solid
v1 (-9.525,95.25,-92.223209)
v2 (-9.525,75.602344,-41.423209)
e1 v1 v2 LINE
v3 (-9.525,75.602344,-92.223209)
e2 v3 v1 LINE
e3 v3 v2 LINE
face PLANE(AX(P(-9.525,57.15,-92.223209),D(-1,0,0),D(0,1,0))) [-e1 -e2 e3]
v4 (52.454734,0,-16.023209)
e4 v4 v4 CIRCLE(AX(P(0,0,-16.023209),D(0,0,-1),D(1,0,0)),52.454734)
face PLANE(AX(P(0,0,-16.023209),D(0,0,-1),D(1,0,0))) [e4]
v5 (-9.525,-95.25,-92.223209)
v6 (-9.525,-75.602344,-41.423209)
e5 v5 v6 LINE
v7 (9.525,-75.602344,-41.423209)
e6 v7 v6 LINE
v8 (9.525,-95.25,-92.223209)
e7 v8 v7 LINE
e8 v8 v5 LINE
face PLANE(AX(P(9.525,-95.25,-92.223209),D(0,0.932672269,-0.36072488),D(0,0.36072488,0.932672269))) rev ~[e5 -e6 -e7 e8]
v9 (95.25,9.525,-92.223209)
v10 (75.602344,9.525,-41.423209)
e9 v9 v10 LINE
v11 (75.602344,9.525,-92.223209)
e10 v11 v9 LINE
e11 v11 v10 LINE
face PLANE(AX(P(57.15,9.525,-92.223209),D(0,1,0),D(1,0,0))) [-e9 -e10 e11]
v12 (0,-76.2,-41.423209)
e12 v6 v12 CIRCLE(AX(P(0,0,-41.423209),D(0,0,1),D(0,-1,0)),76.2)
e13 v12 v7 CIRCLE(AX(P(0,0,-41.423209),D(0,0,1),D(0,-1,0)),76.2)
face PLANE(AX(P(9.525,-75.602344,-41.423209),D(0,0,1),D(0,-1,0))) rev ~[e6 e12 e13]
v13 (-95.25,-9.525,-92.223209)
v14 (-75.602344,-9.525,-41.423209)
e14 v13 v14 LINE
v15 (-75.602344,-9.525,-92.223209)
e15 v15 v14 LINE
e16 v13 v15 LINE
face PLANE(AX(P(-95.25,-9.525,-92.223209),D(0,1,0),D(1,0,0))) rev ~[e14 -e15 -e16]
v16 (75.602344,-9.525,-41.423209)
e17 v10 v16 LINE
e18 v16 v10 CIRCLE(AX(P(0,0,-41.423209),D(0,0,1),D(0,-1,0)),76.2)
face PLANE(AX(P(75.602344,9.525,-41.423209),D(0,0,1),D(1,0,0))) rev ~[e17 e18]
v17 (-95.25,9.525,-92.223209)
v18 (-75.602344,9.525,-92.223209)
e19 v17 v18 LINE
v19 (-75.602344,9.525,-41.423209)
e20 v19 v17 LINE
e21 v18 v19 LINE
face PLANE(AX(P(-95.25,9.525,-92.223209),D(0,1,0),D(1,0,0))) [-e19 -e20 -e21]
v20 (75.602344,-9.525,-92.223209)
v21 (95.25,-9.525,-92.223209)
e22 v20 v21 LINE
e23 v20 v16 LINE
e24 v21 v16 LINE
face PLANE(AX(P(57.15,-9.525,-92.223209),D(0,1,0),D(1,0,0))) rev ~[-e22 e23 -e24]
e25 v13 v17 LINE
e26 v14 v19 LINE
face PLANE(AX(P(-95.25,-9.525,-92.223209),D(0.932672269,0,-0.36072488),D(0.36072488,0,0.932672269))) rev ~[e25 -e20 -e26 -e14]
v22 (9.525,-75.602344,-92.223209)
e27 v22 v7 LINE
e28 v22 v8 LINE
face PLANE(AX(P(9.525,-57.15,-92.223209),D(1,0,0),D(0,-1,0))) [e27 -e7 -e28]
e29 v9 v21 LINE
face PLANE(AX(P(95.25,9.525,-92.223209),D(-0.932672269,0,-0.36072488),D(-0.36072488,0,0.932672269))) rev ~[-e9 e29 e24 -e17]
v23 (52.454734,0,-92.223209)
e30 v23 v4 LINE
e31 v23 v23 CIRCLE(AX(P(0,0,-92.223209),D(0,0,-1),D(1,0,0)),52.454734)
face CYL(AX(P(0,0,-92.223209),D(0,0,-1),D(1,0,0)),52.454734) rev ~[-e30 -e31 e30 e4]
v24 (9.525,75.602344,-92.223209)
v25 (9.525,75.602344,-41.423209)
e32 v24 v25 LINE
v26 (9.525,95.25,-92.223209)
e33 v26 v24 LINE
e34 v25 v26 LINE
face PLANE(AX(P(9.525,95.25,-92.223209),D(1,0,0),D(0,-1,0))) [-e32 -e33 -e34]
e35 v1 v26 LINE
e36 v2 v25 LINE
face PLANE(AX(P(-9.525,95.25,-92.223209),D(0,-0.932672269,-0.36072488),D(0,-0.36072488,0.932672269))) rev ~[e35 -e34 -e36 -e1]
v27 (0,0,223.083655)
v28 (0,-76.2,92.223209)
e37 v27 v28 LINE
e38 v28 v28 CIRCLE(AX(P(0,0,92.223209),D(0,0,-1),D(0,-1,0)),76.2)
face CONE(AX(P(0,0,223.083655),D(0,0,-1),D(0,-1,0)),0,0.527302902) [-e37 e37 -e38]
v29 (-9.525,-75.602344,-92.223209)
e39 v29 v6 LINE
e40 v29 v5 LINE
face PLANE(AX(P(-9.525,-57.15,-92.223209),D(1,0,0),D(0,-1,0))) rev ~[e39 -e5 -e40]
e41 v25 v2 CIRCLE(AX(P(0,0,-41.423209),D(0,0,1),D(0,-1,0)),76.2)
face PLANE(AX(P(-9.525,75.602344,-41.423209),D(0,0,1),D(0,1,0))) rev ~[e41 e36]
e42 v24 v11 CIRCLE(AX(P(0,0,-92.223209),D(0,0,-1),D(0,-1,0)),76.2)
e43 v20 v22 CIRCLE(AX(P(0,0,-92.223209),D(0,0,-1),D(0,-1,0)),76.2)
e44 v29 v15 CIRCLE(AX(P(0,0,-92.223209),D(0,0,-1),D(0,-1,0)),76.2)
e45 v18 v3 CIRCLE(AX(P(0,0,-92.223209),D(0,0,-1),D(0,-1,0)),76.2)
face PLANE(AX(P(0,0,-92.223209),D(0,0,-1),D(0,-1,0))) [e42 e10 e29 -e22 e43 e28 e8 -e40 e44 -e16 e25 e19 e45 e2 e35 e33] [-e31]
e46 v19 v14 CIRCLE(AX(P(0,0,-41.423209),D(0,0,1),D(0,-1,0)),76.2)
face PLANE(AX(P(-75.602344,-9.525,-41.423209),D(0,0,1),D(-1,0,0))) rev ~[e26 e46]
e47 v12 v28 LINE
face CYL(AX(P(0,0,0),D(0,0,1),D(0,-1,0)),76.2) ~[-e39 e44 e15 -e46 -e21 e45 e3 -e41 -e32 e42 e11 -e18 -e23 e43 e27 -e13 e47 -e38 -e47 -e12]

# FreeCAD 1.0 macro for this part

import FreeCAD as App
import Part
import Sketcher
Q = App.Units.Quantity

doc = App.newDocument("Part")
params = doc.addObject("Spreadsheet::Sheet", "Params")
for row, (alias, value) in enumerate([
    ("sketch1_width", "3 in"),
    ("revolution_angle", "360 deg"),
    ("pocket1_length", "3 in"),
    ("sketch3_width", "1.5 in"),
    ("sketch3_width2", "0.75 in"),
    ("pad1_length", "2 in"),
    ("sketch4_height", "2 in"),
    ("sketch5_height", "2 in"),
    ("sketch6_height", "2 in"),
    ("sketch7_height", "2 in"),
], start=1):
    params.set(f"A{row}", alias)
    params.set(f"B{row}", "=" + value)
    params.setAlias(f"B{row}", alias)

body = doc.addObject("PartDesign::Body", "Body")

# Sketch on YZ plane
sketch1 = body.newObject("Sketcher::SketchObject", "Sketch")
sketch1.AttachmentSupport = (doc.getObject("YZ_Plane"), [""])
sketch1.MapMode = "FlatFace"
sketch1.addGeometry(Part.LineSegment(App.Vector(0, 223, 0), App.Vector(-76, 92, 0)), False)
sketch1.addGeometry(Part.LineSegment(App.Vector(-76, 92, 0), App.Vector(-76, -92, 0)), False)
sketch1.addGeometry(Part.LineSegment(App.Vector(-76, -92, 0), App.Vector(0, -92, 0)), False)
sketch1.addGeometry(Part.LineSegment(App.Vector(0, -92, 0), App.Vector(0, 223, 0)), False)
sketch1.addConstraint(Sketcher.Constraint("Coincident", 0, 2, 1, 1))
sketch1.addConstraint(Sketcher.Constraint("Coincident", 1, 2, 2, 1))
sketch1.addConstraint(Sketcher.Constraint("Coincident", 2, 2, 3, 1))
sketch1.addConstraint(Sketcher.Constraint("Coincident", 3, 2, 0, 1))
sketch1.addConstraint(Sketcher.Constraint("Vertical", 1))
sketch1.addConstraint(Sketcher.Constraint("Horizontal", 2))
sketch1.addConstraint(Sketcher.Constraint("Vertical", 3))
sketch1.addConstraint(Sketcher.Constraint("PointOnObject", 2, 2, -2))
sketch1.addConstraint(Sketcher.Constraint("DistanceX", 2, 1, 2, 2, Q("3 in")))
sketch1.addConstraint(Sketcher.Constraint("DistanceY", 1, 2, 1, 1, 184.446418))
sketch1.addConstraint(Sketcher.Constraint("Distance", 0, 151.429509))
sketch1.addConstraint(Sketcher.Constraint("DistanceY", -1, 1, 0, 2, 92.223209))
sketch1.setExpression("Constraints[8]", "Params.sketch1_width")
revolution = body.newObject("PartDesign::Revolution", "Revolution")
revolution.Profile = sketch1
revolution.ReferenceAxis = (sketch1, ["V_Axis"])
revolution.setExpression("Angle", "Params.revolution_angle")

# Sketch on XY plane
sketch2 = body.newObject("Sketcher::SketchObject", "Sketch001")
sketch2.AttachmentSupport = (doc.getObject("XY_Plane"), [""])
sketch2.MapMode = "FlatFace"
sketch2.AttachmentOffset = App.Placement(App.Vector(0, 0, -92.223209), App.Rotation())
sketch2.addGeometry(Part.Circle(App.Vector(0, 0, 0), App.Vector(0, 0, 1), 52), False)
sketch2.addConstraint(Sketcher.Constraint("Coincident", 0, 3, -1, 1))
sketch2.addConstraint(Sketcher.Constraint("Diameter", 0, 104.909468))
pocket1 = body.newObject("PartDesign::Pocket", "Pocket")
pocket1.Profile = sketch2
pocket1.setExpression("Length", "Params.pocket1_length")
pocket1.Reversed = True

# Sketch on XY plane
sketch3 = body.newObject("Sketcher::SketchObject", "Sketch002")
sketch3.AttachmentSupport = (doc.getObject("XY_Plane"), [""])
sketch3.MapMode = "FlatFace"
sketch3.AttachmentOffset = App.Placement(App.Vector(0, 0, -92.223209), App.Rotation())
sketch3.addGeometry(Part.LineSegment(App.Vector(57, 10, 0), App.Vector(95, 10, 0)), False)
sketch3.addGeometry(Part.LineSegment(App.Vector(95, 10, 0), App.Vector(95, -10, 0)), False)
sketch3.addGeometry(Part.LineSegment(App.Vector(95, -10, 0), App.Vector(57, -10, 0)), False)
sketch3.addGeometry(Part.LineSegment(App.Vector(57, -10, 0), App.Vector(57, 10, 0)), False)
sketch3.addGeometry(Part.LineSegment(App.Vector(-95, 10, 0), App.Vector(-57, 10, 0)), False)
sketch3.addGeometry(Part.LineSegment(App.Vector(-57, 10, 0), App.Vector(-57, -10, 0)), False)
sketch3.addGeometry(Part.LineSegment(App.Vector(-57, -10, 0), App.Vector(-95, -10, 0)), False)
sketch3.addGeometry(Part.LineSegment(App.Vector(-95, -10, 0), App.Vector(-95, 10, 0)), False)
sketch3.addGeometry(Part.LineSegment(App.Vector(10, -57, 0), App.Vector(10, -95, 0)), False)
sketch3.addGeometry(Part.LineSegment(App.Vector(10, -95, 0), App.Vector(-10, -95, 0)), False)
sketch3.addGeometry(Part.LineSegment(App.Vector(-10, -95, 0), App.Vector(-10, -57, 0)), False)
sketch3.addGeometry(Part.LineSegment(App.Vector(-10, -57, 0), App.Vector(10, -57, 0)), False)
sketch3.addGeometry(Part.LineSegment(App.Vector(10, 57, 0), App.Vector(-10, 57, 0)), False)
sketch3.addGeometry(Part.LineSegment(App.Vector(-10, 57, 0), App.Vector(-10, 95, 0)), False)
sketch3.addGeometry(Part.LineSegment(App.Vector(-10, 95, 0), App.Vector(10, 95, 0)), False)
sketch3.addGeometry(Part.LineSegment(App.Vector(10, 95, 0), App.Vector(10, 57, 0)), False)
sketch3.addConstraint(Sketcher.Constraint("Coincident", 0, 2, 1, 1))
sketch3.addConstraint(Sketcher.Constraint("Coincident", 1, 2, 2, 1))
sketch3.addConstraint(Sketcher.Constraint("Coincident", 2, 2, 3, 1))
sketch3.addConstraint(Sketcher.Constraint("Coincident", 3, 2, 0, 1))
sketch3.addConstraint(Sketcher.Constraint("Coincident", 4, 2, 5, 1))
sketch3.addConstraint(Sketcher.Constraint("Coincident", 5, 2, 6, 1))
sketch3.addConstraint(Sketcher.Constraint("Coincident", 6, 2, 7, 1))
sketch3.addConstraint(Sketcher.Constraint("Coincident", 7, 2, 4, 1))
sketch3.addConstraint(Sketcher.Constraint("Coincident", 8, 2, 9, 1))
sketch3.addConstraint(Sketcher.Constraint("Coincident", 9, 2, 10, 1))
sketch3.addConstraint(Sketcher.Constraint("Coincident", 10, 2, 11, 1))
sketch3.addConstraint(Sketcher.Constraint("Coincident", 11, 2, 8, 1))
sketch3.addConstraint(Sketcher.Constraint("Coincident", 12, 2, 13, 1))
sketch3.addConstraint(Sketcher.Constraint("Coincident", 13, 2, 14, 1))
sketch3.addConstraint(Sketcher.Constraint("Coincident", 14, 2, 15, 1))
sketch3.addConstraint(Sketcher.Constraint("Coincident", 15, 2, 12, 1))
sketch3.addConstraint(Sketcher.Constraint("Horizontal", 0))
sketch3.addConstraint(Sketcher.Constraint("Vertical", 1))
sketch3.addConstraint(Sketcher.Constraint("Horizontal", 2))
sketch3.addConstraint(Sketcher.Constraint("Vertical", 3))
sketch3.addConstraint(Sketcher.Constraint("Horizontal", 4))
sketch3.addConstraint(Sketcher.Constraint("Vertical", 5))
sketch3.addConstraint(Sketcher.Constraint("Horizontal", 6))
sketch3.addConstraint(Sketcher.Constraint("Vertical", 7))
sketch3.addConstraint(Sketcher.Constraint("Vertical", 8))
sketch3.addConstraint(Sketcher.Constraint("Horizontal", 9))
sketch3.addConstraint(Sketcher.Constraint("Vertical", 10))
sketch3.addConstraint(Sketcher.Constraint("Horizontal", 11))
sketch3.addConstraint(Sketcher.Constraint("Horizontal", 12))
sketch3.addConstraint(Sketcher.Constraint("Vertical", 13))
sketch3.addConstraint(Sketcher.Constraint("Horizontal", 14))
sketch3.addConstraint(Sketcher.Constraint("Vertical", 15))
sketch3.addConstraint(Sketcher.Constraint("Symmetric", 2, 2, 4, 2, -1, 1))
sketch3.addConstraint(Sketcher.Constraint("Symmetric", 0, 2, 6, 2, -1, 1))
sketch3.addConstraint(Sketcher.Constraint("Symmetric", 11, 2, 12, 2, -1, 1))
sketch3.addConstraint(Sketcher.Constraint("Symmetric", 9, 2, 14, 2, -1, 1))
sketch3.addConstraint(Sketcher.Constraint("Horizontal", 3, 2, 4, 2))
sketch3.addConstraint(Sketcher.Constraint("Vertical", 10, 2, 12, 2))
sketch3.addConstraint(Sketcher.Constraint("Equal", 14, 1))
sketch3.addConstraint(Sketcher.Constraint("Equal", 6, 8))
sketch3.addConstraint(Sketcher.Constraint("DistanceX", 0, 1, 0, 2, Q("1.5 in")))
sketch3.addConstraint(Sketcher.Constraint("DistanceX", 4, 2, 0, 2, Q("6 in")))
sketch3.addConstraint(Sketcher.Constraint("DistanceX", 9, 2, 9, 1, Q("0.75 in")))
sketch3.addConstraint(Sketcher.Constraint("DistanceY", 8, 2, -1, 1, Q("3.75 in")))
sketch3.setExpression("Constraints[40]", "Params.sketch3_width")
sketch3.setExpression("Constraints[42]", "Params.sketch3_width2")
pad1 = body.newObject("PartDesign::Pad", "Pad")
pad1.Profile = sketch3
pad1.setExpression("Length", "Params.pad1_length")

# Sketch on XZ plane
sketch4 = body.newObject("Sketcher::SketchObject", "Sketch003")
sketch4.AttachmentSupport = (doc.getObject("XZ_Plane"), [""])
sketch4.MapMode = "FlatFace"
sketch4.AttachmentOffset = App.Placement(App.Vector(0, 0, 0.375 * 25.4), App.Rotation())
sketch4.addGeometry(Part.LineSegment(App.Vector(-95, -41, 0), App.Vector(-95, -92, 0)), False)
sketch4.addGeometry(Part.LineSegment(App.Vector(-95, -92, 0), App.Vector(-76, -41, 0)), False)
sketch4.addGeometry(Part.LineSegment(App.Vector(-76, -41, 0), App.Vector(-95, -41, 0)), False)
sketch4.addConstraint(Sketcher.Constraint("Coincident", 0, 2, 1, 1))
sketch4.addConstraint(Sketcher.Constraint("Coincident", 1, 2, 2, 1))
sketch4.addConstraint(Sketcher.Constraint("Coincident", 2, 2, 0, 1))
sketch4.addConstraint(Sketcher.Constraint("Vertical", 0))
sketch4.addConstraint(Sketcher.Constraint("Horizontal", 2))
sketch4.addConstraint(Sketcher.Constraint("DistanceY", 0, 2, 0, 1, Q("2 in")))
sketch4.addConstraint(Sketcher.Constraint("DistanceX", 0, 2, -1, 1, Q("3.75 in")))
sketch4.addConstraint(Sketcher.Constraint("Distance", 1, 54.46715))
sketch4.addConstraint(Sketcher.Constraint("DistanceY", 0, 2, -1, 1, 92.223209))
sketch4.setExpression("Constraints[5]", "Params.sketch4_height")
pocket2 = body.newObject("PartDesign::Pocket", "Pocket001")
pocket2.Profile = sketch4
pocket2.Type = "ThroughAll"

# Sketch on YZ plane
sketch5 = body.newObject("Sketcher::SketchObject", "Sketch004")
sketch5.AttachmentSupport = (doc.getObject("YZ_Plane"), [""])
sketch5.MapMode = "FlatFace"
sketch5.AttachmentOffset = App.Placement(App.Vector(0, 0, 0.375 * 25.4), App.Rotation())
sketch5.addGeometry(Part.LineSegment(App.Vector(-95, -41, 0), App.Vector(-95, -92, 0)), False)
sketch5.addGeometry(Part.LineSegment(App.Vector(-95, -92, 0), App.Vector(-76, -41, 0)), False)
sketch5.addGeometry(Part.LineSegment(App.Vector(-76, -41, 0), App.Vector(-95, -41, 0)), False)
sketch5.addConstraint(Sketcher.Constraint("Coincident", 0, 2, 1, 1))
sketch5.addConstraint(Sketcher.Constraint("Coincident", 1, 2, 2, 1))
sketch5.addConstraint(Sketcher.Constraint("Coincident", 2, 2, 0, 1))
sketch5.addConstraint(Sketcher.Constraint("Vertical", 0))
sketch5.addConstraint(Sketcher.Constraint("Horizontal", 2))
sketch5.addConstraint(Sketcher.Constraint("DistanceY", 0, 2, 0, 1, Q("2 in")))
sketch5.addConstraint(Sketcher.Constraint("DistanceX", 0, 2, -1, 1, Q("3.75 in")))
sketch5.addConstraint(Sketcher.Constraint("Distance", 1, 54.46715))
sketch5.addConstraint(Sketcher.Constraint("DistanceY", 0, 2, -1, 1, 92.223209))
sketch5.setExpression("Constraints[5]", "Params.sketch5_height")
pocket3 = body.newObject("PartDesign::Pocket", "Pocket002")
pocket3.Profile = sketch5
pocket3.Type = "ThroughAll"

# Sketch on YZ plane
sketch6 = body.newObject("Sketcher::SketchObject", "Sketch005")
sketch6.AttachmentSupport = (doc.getObject("YZ_Plane"), [""])
sketch6.MapMode = "FlatFace"
sketch6.AttachmentOffset = App.Placement(App.Vector(0, 0, -0.375 * 25.4), App.Rotation())
sketch6.addGeometry(Part.LineSegment(App.Vector(95, -41, 0), App.Vector(95, -92, 0)), False)
sketch6.addGeometry(Part.LineSegment(App.Vector(95, -92, 0), App.Vector(76, -41, 0)), False)
sketch6.addGeometry(Part.LineSegment(App.Vector(76, -41, 0), App.Vector(95, -41, 0)), False)
sketch6.addConstraint(Sketcher.Constraint("Coincident", 0, 2, 1, 1))
sketch6.addConstraint(Sketcher.Constraint("Coincident", 1, 2, 2, 1))
sketch6.addConstraint(Sketcher.Constraint("Coincident", 2, 2, 0, 1))
sketch6.addConstraint(Sketcher.Constraint("Vertical", 0))
sketch6.addConstraint(Sketcher.Constraint("Horizontal", 2))
sketch6.addConstraint(Sketcher.Constraint("DistanceY", 0, 2, 0, 1, Q("2 in")))
sketch6.addConstraint(Sketcher.Constraint("DistanceX", -1, 1, 0, 2, Q("3.75 in")))
sketch6.addConstraint(Sketcher.Constraint("Distance", 1, 54.46715))
sketch6.addConstraint(Sketcher.Constraint("DistanceY", 0, 2, -1, 1, 92.223209))
sketch6.setExpression("Constraints[5]", "Params.sketch6_height")
pocket4 = body.newObject("PartDesign::Pocket", "Pocket003")
pocket4.Profile = sketch6
pocket4.Type = "ThroughAll"
pocket4.Reversed = True

# Sketch on XZ plane
sketch7 = body.newObject("Sketcher::SketchObject", "Sketch006")
sketch7.AttachmentSupport = (doc.getObject("XZ_Plane"), [""])
sketch7.MapMode = "FlatFace"
sketch7.AttachmentOffset = App.Placement(App.Vector(0, 0, -0.375 * 25.4), App.Rotation())
sketch7.addGeometry(Part.LineSegment(App.Vector(95, -41, 0), App.Vector(95, -92, 0)), False)
sketch7.addGeometry(Part.LineSegment(App.Vector(95, -92, 0), App.Vector(76, -41, 0)), False)
sketch7.addGeometry(Part.LineSegment(App.Vector(76, -41, 0), App.Vector(95, -41, 0)), False)
sketch7.addConstraint(Sketcher.Constraint("Coincident", 0, 2, 1, 1))
sketch7.addConstraint(Sketcher.Constraint("Coincident", 1, 2, 2, 1))
sketch7.addConstraint(Sketcher.Constraint("Coincident", 2, 2, 0, 1))
sketch7.addConstraint(Sketcher.Constraint("Vertical", 0))
sketch7.addConstraint(Sketcher.Constraint("Horizontal", 2))
sketch7.addConstraint(Sketcher.Constraint("DistanceY", 0, 2, 0, 1, Q("2 in")))
sketch7.addConstraint(Sketcher.Constraint("DistanceX", -1, 1, 0, 2, Q("3.75 in")))
sketch7.addConstraint(Sketcher.Constraint("Distance", 1, 54.46715))
sketch7.addConstraint(Sketcher.Constraint("DistanceY", 0, 2, -1, 1, 92.223209))
sketch7.setExpression("Constraints[5]", "Params.sketch7_height")
pocket5 = body.newObject("PartDesign::Pocket", "Pocket004")
pocket5.Profile = sketch7
pocket5.Type = "ThroughAll"
pocket5.Reversed = True

doc.recompute()
